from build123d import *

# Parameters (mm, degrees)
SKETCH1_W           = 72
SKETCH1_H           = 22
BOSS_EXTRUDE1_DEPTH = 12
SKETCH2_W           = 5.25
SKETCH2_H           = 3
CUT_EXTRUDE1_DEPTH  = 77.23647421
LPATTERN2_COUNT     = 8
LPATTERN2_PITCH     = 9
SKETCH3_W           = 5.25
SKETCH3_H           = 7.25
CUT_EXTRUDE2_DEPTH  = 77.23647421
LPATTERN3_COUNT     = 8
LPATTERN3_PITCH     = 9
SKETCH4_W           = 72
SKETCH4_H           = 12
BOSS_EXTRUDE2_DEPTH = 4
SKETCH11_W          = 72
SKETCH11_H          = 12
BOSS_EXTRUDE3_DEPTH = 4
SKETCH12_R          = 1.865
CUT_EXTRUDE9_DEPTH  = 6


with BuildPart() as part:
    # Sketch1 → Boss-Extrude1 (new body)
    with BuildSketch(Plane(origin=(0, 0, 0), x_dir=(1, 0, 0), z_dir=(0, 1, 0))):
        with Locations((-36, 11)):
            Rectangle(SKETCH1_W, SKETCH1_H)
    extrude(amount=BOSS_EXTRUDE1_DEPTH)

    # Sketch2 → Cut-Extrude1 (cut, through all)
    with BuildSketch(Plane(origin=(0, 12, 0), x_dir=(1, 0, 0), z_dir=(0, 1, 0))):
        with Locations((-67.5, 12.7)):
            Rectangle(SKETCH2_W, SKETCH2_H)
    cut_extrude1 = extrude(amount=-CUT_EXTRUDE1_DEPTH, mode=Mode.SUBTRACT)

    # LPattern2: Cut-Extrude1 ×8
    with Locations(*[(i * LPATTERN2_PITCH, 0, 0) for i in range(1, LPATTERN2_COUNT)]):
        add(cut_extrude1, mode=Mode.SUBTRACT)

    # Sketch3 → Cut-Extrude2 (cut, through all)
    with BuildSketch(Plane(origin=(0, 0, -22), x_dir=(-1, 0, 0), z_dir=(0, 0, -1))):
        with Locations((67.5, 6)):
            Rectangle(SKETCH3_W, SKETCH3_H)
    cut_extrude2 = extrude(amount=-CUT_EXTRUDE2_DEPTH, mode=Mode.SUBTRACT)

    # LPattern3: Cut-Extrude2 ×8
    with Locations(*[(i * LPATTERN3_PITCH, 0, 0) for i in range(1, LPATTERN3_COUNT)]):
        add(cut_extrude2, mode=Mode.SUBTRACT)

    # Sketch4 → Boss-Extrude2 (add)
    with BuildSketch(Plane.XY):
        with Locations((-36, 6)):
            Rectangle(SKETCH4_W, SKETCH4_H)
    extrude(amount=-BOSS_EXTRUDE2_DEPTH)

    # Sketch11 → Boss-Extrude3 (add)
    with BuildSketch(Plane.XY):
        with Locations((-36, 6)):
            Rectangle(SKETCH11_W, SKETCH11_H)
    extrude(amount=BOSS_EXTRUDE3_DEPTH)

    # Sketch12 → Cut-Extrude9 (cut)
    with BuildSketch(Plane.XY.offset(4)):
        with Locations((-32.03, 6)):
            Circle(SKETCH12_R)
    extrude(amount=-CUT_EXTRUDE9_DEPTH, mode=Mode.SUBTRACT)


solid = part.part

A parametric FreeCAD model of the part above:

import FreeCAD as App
import Part
import Sketcher

V = App.Vector
Q = App.Units.Quantity

doc = App.newDocument("Part")
params = doc.addObject("Spreadsheet::Sheet", "Params")
for row, (alias, value) in enumerate([
    ("sketch1_width", "72 mm"),
    ("sketch1_height", "22 mm"),
    ("pad1_length", "12 mm"),
    ("sketch2_height", "3 mm"),
    ("sketch2_width", "5.25 mm"),
    ("linearpattern_pitch", "9 mm"),
    ("sketch3_width", "5.25 mm"),
    ("sketch3_height", "7.25 mm"),
    ("linearpattern2_pitch", "9 mm"),
    ("sketch4_width", "72 mm"),
    ("sketch4_height", "12 mm"),
    ("pad2_length", "4 mm"),
    ("sketch5_width", "72 mm"),
    ("sketch5_height", "12 mm"),
    ("pad3_length", "4 mm"),
    ("sketch6_diameter", "3.73 mm"),
    ("pocket3_length", "6 mm"),
], start=1):
    params.set(f"A{row}", alias)
    params.set(f"B{row}", "=" + value)
    params.setAlias(f"B{row}", alias)

body = doc.addObject("PartDesign::Body", "Body")

sketch1 = body.newObject("Sketcher::SketchObject", "Sketch")
sketch1.AttachmentSupport = (doc.getObject("XZ_Plane"), [""])
sketch1.MapMode = "FlatFace"
sketch1.addGeometry([
    Part.LineSegment(V(-72, -22, 0), V(-72, 0, 0)),
    Part.LineSegment(V(-72, 0, 0), V(0, 0, 0)),
    Part.LineSegment(V(0, 0, 0), V(0, -22, 0)),
    Part.LineSegment(V(0, -22, 0), V(-72, -22, 0)),
], False)
sketch1.addConstraint([
    Sketcher.Constraint("Coincident", 0, 2, 1, 1),
    Sketcher.Constraint("Coincident", 1, 2, 2, 1),
    Sketcher.Constraint("Coincident", 2, 2, 3, 1),
    Sketcher.Constraint("Coincident", 3, 2, 0, 1),
    Sketcher.Constraint("Vertical", 0),
    Sketcher.Constraint("Horizontal", 1),
    Sketcher.Constraint("Vertical", 2),
    Sketcher.Constraint("Horizontal", 3),
    Sketcher.Constraint("Coincident", 1, 2, -1, 1),
    Sketcher.Constraint("DistanceX", 1, 1, 1, 2, Q("72 mm")),
    Sketcher.Constraint("DistanceY", 0, 1, 0, 2, Q("22 mm")),
])
sketch1.setExpression("Constraints[9]", "Params.sketch1_width")
sketch1.setExpression("Constraints[10]", "Params.sketch1_height")
pad1 = body.newObject("PartDesign::Pad", "Pad")
pad1.Profile = sketch1
pad1.setExpression("Length", "Params.pad1_length")
pad1.Reversed = True

sketch2 = body.newObject("Sketcher::SketchObject", "Sketch001")
sketch2.AttachmentSupport = (doc.getObject("XZ_Plane"), [""])
sketch2.MapMode = "FlatFace"
sketch2.AttachmentOffset = App.Placement(V(0, 0, -12), App.Rotation())
sketch2.addGeometry([
    Part.LineSegment(V(-70.1, -14.2, 0), V(-70.1, -11.2, 0)),
    Part.LineSegment(V(-70.1, -11.2, 0), V(-64.9, -11.2, 0)),
    Part.LineSegment(V(-64.9, -11.2, 0), V(-64.9, -14.2, 0)),
    Part.LineSegment(V(-64.9, -14.2, 0), V(-70.1, -14.2, 0)),
], False)
sketch2.addConstraint([
    Sketcher.Constraint("Coincident", 0, 2, 1, 1),
    Sketcher.Constraint("Coincident", 1, 2, 2, 1),
    Sketcher.Constraint("Coincident", 2, 2, 3, 1),
    Sketcher.Constraint("Coincident", 3, 2, 0, 1),
    Sketcher.Constraint("Vertical", 0),
    Sketcher.Constraint("Horizontal", 1),
    Sketcher.Constraint("Vertical", 2),
    Sketcher.Constraint("Horizontal", 3),
    Sketcher.Constraint("DistanceY", 0, 1, 0, 2, Q("3 mm")),
    Sketcher.Constraint("DistanceX", 1, 1, 1, 2, Q("5.25 mm")),
    Sketcher.Constraint("DistanceY", 0, 2, -1, 1, Q("11.2 mm")),
    Sketcher.Constraint("DistanceX", 0, 2, -1, 1, Q("70.125 mm")),
])
sketch2.setExpression("Constraints[8]", "Params.sketch2_height")
sketch2.setExpression("Constraints[9]", "Params.sketch2_width")
pocket1 = body.newObject("PartDesign::Pocket", "Pocket")
pocket1.Profile = sketch2
pocket1.Type = "ThroughAll"
pocket1.Reversed = True
doc.recompute()

linearpattern = body.newObject("PartDesign::LinearPattern", "LinearPattern")
linearpattern.Originals = [pocket1]
linearpattern.Direction = (doc.getObject("X_Axis"), [""])
linearpattern.Mode = "offset"
linearpattern.setExpression("Offset", "Params.linearpattern_pitch")
linearpattern.Occurrences = 8
body.Tip = linearpattern

sketch3 = body.newObject("Sketcher::SketchObject", "Sketch002")
sketch3.AttachmentSupport = (doc.getObject("XY_Plane"), [""])
sketch3.MapMode = "FlatFace"
sketch3.AttachmentOffset = App.Placement(V(0, 0, -22), App.Rotation())
sketch3.addGeometry([
    Part.LineSegment(V(-65, 10, 0), V(-65, 2, 0)),
    Part.LineSegment(V(-65, 2, 0), V(-70, 2, 0)),
    Part.LineSegment(V(-70, 2, 0), V(-70, 10, 0)),
    Part.LineSegment(V(-70, 10, 0), V(-65, 10, 0)),
], False)
sketch3.addConstraint([
    Sketcher.Constraint("Coincident", 0, 2, 1, 1),
    Sketcher.Constraint("Coincident", 1, 2, 2, 1),
    Sketcher.Constraint("Coincident", 2, 2, 3, 1),
    Sketcher.Constraint("Coincident", 3, 2, 0, 1),
    Sketcher.Constraint("Vertical", 0),
    Sketcher.Constraint("Horizontal", 1),
    Sketcher.Constraint("Vertical", 2),
    Sketcher.Constraint("Horizontal", 3),
    Sketcher.Constraint("DistanceX", 1, 2, 1, 1, Q("5.25 mm")),
    Sketcher.Constraint("DistanceY", 0, 2, 0, 1, Q("7.25 mm")),
    Sketcher.Constraint("DistanceX", 0, 2, -1, 1, Q("64.875 mm")),
    Sketcher.Constraint("DistanceY", -1, 1, 0, 2, Q("2.375 mm")),
])
sketch3.setExpression("Constraints[8]", "Params.sketch3_width")
sketch3.setExpression("Constraints[9]", "Params.sketch3_height")
pocket2 = body.newObject("PartDesign::Pocket", "Pocket001")
pocket2.Profile = sketch3
pocket2.Type = "ThroughAll"
pocket2.Reversed = True
doc.recompute()

linearpattern2 = body.newObject("PartDesign::LinearPattern", "LinearPattern001")
linearpattern2.Originals = [pocket2]
linearpattern2.Direction = (doc.getObject("X_Axis"), [""])
linearpattern2.Mode = "offset"
linearpattern2.setExpression("Offset", "Params.linearpattern2_pitch")
linearpattern2.Occurrences = 8
body.Tip = linearpattern2

sketch4 = body.newObject("Sketcher::SketchObject", "Sketch003")
sketch4.AttachmentSupport = (doc.getObject("XY_Plane"), [""])
sketch4.MapMode = "FlatFace"
sketch4.addGeometry([
    Part.LineSegment(V(-72, 12, 0), V(-72, 0, 0)),
    Part.LineSegment(V(-72, 0, 0), V(0, 0, 0)),
    Part.LineSegment(V(0, 0, 0), V(0, 12, 0)),
    Part.LineSegment(V(0, 12, 0), V(-72, 12, 0)),
], False)
sketch4.addConstraint([
    Sketcher.Constraint("Coincident", 0, 2, 1, 1),
    Sketcher.Constraint("Coincident", 1, 2, 2, 1),
    Sketcher.Constraint("Coincident", 2, 2, 3, 1),
    Sketcher.Constraint("Coincident", 3, 2, 0, 1),
    Sketcher.Constraint("Vertical", 0),
    Sketcher.Constraint("Horizontal", 1),
    Sketcher.Constraint("Vertical", 2),
    Sketcher.Constraint("Horizontal", 3),
    Sketcher.Constraint("Coincident", 1, 2, -1, 1),
    Sketcher.Constraint("DistanceX", 1, 1, 1, 2, Q("72 mm")),
    Sketcher.Constraint("DistanceY", 0, 2, 0, 1, Q("12 mm")),
])
sketch4.setExpression("Constraints[9]", "Params.sketch4_width")
sketch4.setExpression("Constraints[10]", "Params.sketch4_height")
pad2 = body.newObject("PartDesign::Pad", "Pad001")
pad2.Profile = sketch4
pad2.setExpression("Length", "Params.pad2_length")
pad2.Reversed = True

sketch5 = body.newObject("Sketcher::SketchObject", "Sketch004")
sketch5.AttachmentSupport = (doc.getObject("XY_Plane"), [""])
sketch5.MapMode = "FlatFace"
sketch5.addGeometry([
    Part.LineSegment(V(-72, 12, 0), V(-72, 0, 0)),
    Part.LineSegment(V(-72, 0, 0), V(0, 0, 0)),
    Part.LineSegment(V(0, 0, 0), V(0, 12, 0)),
    Part.LineSegment(V(0, 12, 0), V(-72, 12, 0)),
], False)
sketch5.addConstraint([
    Sketcher.Constraint("Coincident", 0, 2, 1, 1),
    Sketcher.Constraint("Coincident", 1, 2, 2, 1),
    Sketcher.Constraint("Coincident", 2, 2, 3, 1),
    Sketcher.Constraint("Coincident", 3, 2, 0, 1),
    Sketcher.Constraint("Vertical", 0),
    Sketcher.Constraint("Horizontal", 1),
    Sketcher.Constraint("Vertical", 2),
    Sketcher.Constraint("Horizontal", 3),
    Sketcher.Constraint("Coincident", 1, 2, -1, 1),
    Sketcher.Constraint("DistanceX", 1, 1, 1, 2, Q("72 mm")),
    Sketcher.Constraint("DistanceY", 0, 2, 0, 1, Q("12 mm")),
])
sketch5.setExpression("Constraints[9]", "Params.sketch5_width")
sketch5.setExpression("Constraints[10]", "Params.sketch5_height")
pad3 = body.newObject("PartDesign::Pad", "Pad002")
pad3.Profile = sketch5
pad3.setExpression("Length", "Params.pad3_length")

sketch6 = body.newObject("Sketcher::SketchObject", "Sketch005")
sketch6.AttachmentSupport = (doc.getObject("XY_Plane"), [""])
sketch6.MapMode = "FlatFace"
sketch6.AttachmentOffset = App.Placement(V(0, 0, 4), App.Rotation())
sketch6.addGeometry(Part.Circle(V(-32, 6, 0), V(0, 0, 1), 1.9), False)
sketch6.addConstraint([
    Sketcher.Constraint("Diameter", 0, Q("3.73 mm")),
    Sketcher.Constraint("DistanceY", -1, 1, 0, 3, Q("6 mm")),
    Sketcher.Constraint("DistanceX", 0, 3, -1, 1, Q("32.03 mm")),
])
sketch6.setExpression("Constraints[0]", "Params.sketch6_diameter")
pocket3 = body.newObject("PartDesign::Pocket", "Pocket002")
pocket3.Profile = sketch6
pocket3.setExpression("Length", "Params.pocket3_length")

doc.recompute()
